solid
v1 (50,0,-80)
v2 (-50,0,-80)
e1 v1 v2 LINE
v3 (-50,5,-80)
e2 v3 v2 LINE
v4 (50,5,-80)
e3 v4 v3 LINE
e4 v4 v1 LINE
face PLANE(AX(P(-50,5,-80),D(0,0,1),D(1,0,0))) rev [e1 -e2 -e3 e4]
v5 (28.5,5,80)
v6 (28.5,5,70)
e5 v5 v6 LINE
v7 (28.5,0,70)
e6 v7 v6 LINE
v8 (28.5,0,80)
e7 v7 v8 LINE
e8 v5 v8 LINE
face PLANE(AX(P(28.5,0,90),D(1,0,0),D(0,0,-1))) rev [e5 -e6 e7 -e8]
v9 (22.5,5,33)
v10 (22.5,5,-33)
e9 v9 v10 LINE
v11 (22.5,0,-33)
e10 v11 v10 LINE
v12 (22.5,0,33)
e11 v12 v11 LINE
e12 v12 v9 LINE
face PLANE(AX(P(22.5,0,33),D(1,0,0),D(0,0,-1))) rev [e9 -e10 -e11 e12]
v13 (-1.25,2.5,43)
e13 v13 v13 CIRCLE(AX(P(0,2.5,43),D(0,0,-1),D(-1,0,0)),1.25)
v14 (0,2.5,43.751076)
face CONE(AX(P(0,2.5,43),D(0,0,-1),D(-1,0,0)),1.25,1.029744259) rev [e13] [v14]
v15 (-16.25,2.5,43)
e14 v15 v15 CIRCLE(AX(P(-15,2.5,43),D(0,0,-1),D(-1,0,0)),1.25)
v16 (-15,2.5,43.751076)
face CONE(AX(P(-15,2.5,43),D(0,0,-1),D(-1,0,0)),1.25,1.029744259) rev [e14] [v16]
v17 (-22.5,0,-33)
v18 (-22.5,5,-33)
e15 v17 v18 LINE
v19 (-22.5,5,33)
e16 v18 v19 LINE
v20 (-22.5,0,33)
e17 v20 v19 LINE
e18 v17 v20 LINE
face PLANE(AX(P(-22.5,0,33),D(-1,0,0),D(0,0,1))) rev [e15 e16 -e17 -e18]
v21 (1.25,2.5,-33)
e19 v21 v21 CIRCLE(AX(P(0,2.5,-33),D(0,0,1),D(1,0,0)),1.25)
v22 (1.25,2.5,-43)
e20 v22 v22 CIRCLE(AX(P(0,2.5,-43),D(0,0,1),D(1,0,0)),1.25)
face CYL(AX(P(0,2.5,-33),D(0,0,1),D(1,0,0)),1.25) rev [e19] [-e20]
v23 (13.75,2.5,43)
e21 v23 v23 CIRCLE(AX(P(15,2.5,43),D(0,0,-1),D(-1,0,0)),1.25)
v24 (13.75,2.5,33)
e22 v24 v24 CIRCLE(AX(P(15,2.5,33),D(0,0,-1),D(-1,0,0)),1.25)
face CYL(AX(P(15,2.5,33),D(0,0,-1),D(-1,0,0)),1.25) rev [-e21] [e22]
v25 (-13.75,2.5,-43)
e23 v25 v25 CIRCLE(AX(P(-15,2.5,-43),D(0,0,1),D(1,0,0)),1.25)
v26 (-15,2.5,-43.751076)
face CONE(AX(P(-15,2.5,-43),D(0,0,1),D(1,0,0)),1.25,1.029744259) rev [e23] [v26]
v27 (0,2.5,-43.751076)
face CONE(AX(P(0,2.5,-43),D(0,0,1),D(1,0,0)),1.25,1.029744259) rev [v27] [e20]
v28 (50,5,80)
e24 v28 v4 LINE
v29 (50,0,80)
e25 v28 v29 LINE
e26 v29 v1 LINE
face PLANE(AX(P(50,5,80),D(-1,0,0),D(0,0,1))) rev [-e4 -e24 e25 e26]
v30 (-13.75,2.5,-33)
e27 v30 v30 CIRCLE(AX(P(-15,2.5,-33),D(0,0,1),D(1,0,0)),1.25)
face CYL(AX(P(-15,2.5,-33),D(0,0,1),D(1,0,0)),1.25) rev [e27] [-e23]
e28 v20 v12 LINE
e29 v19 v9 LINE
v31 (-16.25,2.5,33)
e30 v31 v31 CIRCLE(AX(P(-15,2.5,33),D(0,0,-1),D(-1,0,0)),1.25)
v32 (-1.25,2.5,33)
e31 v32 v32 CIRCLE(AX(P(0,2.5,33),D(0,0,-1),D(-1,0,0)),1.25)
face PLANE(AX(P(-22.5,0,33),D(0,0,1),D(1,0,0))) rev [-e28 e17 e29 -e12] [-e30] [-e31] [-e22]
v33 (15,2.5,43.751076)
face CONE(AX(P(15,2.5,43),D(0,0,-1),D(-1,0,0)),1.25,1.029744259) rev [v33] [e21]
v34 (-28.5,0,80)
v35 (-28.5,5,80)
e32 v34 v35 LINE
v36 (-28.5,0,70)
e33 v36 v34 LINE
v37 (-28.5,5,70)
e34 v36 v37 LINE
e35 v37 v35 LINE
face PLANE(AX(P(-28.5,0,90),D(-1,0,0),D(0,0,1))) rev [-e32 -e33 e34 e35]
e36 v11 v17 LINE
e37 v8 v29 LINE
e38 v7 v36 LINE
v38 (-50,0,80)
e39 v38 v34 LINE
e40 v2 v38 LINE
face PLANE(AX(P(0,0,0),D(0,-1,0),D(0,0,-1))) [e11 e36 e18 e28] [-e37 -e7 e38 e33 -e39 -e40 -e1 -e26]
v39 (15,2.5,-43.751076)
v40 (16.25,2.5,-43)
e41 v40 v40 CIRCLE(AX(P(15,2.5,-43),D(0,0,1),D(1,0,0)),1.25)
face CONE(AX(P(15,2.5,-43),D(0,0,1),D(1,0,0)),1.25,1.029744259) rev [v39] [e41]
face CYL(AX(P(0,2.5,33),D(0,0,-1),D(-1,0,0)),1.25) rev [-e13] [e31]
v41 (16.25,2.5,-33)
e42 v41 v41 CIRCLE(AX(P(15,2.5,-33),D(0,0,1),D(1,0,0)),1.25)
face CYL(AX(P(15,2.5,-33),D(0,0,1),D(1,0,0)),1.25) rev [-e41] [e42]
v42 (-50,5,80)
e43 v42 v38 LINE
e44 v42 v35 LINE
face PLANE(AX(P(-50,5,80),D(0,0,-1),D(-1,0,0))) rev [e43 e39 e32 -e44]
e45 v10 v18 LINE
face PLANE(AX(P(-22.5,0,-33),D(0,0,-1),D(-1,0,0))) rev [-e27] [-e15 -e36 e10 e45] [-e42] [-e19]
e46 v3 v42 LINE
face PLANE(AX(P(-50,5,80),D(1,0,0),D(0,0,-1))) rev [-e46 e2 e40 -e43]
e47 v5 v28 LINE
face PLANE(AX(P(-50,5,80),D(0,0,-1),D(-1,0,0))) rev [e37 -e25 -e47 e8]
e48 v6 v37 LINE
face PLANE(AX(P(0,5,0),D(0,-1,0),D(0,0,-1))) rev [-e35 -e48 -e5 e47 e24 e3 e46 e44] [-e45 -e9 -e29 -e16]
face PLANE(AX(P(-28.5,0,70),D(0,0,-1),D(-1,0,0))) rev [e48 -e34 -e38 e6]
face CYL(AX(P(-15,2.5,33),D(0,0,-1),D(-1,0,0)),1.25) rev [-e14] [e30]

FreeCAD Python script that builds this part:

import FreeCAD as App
import Part
import Sketcher
Q = App.Units.Quantity

doc = App.newDocument("Part")
params = doc.addObject("Spreadsheet::Sheet", "Params")
for row, (alias, value) in enumerate([
    ("sketch1_width", "100 mm"),
    ("sketch1_height", "160 mm"),
    ("pad1_length", "5 mm"),
    ("sketch2_width", "45 mm"),
    ("sketch2_height", "66 mm"),
    ("sketch3_diameter", "2.5 mm"),
    ("hole_diameter", "2.5 mm"),
    ("hole_depth", "10 mm"),
    ("sketch4_diameter", "2.5 mm"),
    ("hole2_diameter", "2.5 mm"),
    ("hole2_depth", "10 mm"),
    ("sketch5_width", "57 mm"),
    ("sketch5_height", "20 mm"),
], start=1):
    params.set(f"A{row}", alias)
    params.set(f"B{row}", "=" + value)
    params.setAlias(f"B{row}", alias)

body = doc.addObject("PartDesign::Body", "Body")

sketch1 = body.newObject("Sketcher::SketchObject", "Sketch")
sketch1.AttachmentSupport = (doc.getObject("XZ_Plane"), [""])
sketch1.MapMode = "FlatFace"
sketch1.addGeometry([
    Part.LineSegment(App.Vector(-50, -80, 0), App.Vector(-50, 80, 0)),
    Part.LineSegment(App.Vector(-50, 80, 0), App.Vector(50, 80, 0)),
    Part.LineSegment(App.Vector(50, 80, 0), App.Vector(50, -80, 0)),
    Part.LineSegment(App.Vector(50, -80, 0), App.Vector(-50, -80, 0)),
], False)
sketch1.addConstraint([
    Sketcher.Constraint("Coincident", 0, 2, 1, 1),
    Sketcher.Constraint("Coincident", 1, 2, 2, 1),
    Sketcher.Constraint("Coincident", 2, 2, 3, 1),
    Sketcher.Constraint("Coincident", 3, 2, 0, 1),
    Sketcher.Constraint("Vertical", 0),
    Sketcher.Constraint("Horizontal", 1),
    Sketcher.Constraint("Vertical", 2),
    Sketcher.Constraint("Horizontal", 3),
    Sketcher.Constraint("Symmetric", 0, 2, 2, 2, -1, 1),
    Sketcher.Constraint("DistanceX", 1, 1, 1, 2, Q("100 mm")),
    Sketcher.Constraint("DistanceY", 0, 1, 0, 2, Q("160 mm")),
])
sketch1.setExpression("Constraints[9]", "Params.sketch1_width")
sketch1.setExpression("Constraints[10]", "Params.sketch1_height")
pad1 = body.newObject("PartDesign::Pad", "Pad")
pad1.Profile = sketch1
pad1.setExpression("Length", "Params.pad1_length")
pad1.Reversed = True

sketch2 = body.newObject("Sketcher::SketchObject", "Sketch001")
sketch2.AttachmentSupport = (doc.getObject("XZ_Plane"), [""])
sketch2.MapMode = "FlatFace"
sketch2.AttachmentOffset = App.Placement(App.Vector(0, 0, -5), App.Rotation())
sketch2.addGeometry([
    Part.LineSegment(App.Vector(-22, -33, 0), App.Vector(-22, 33, 0)),
    Part.LineSegment(App.Vector(-22, 33, 0), App.Vector(22, 33, 0)),
    Part.LineSegment(App.Vector(22, 33, 0), App.Vector(22, -33, 0)),
    Part.LineSegment(App.Vector(22, -33, 0), App.Vector(-22, -33, 0)),
], False)
sketch2.addConstraint([
    Sketcher.Constraint("Coincident", 0, 2, 1, 1),
    Sketcher.Constraint("Coincident", 1, 2, 2, 1),
    Sketcher.Constraint("Coincident", 2, 2, 3, 1),
    Sketcher.Constraint("Coincident", 3, 2, 0, 1),
    Sketcher.Constraint("Vertical", 0),
    Sketcher.Constraint("Horizontal", 1),
    Sketcher.Constraint("Vertical", 2),
    Sketcher.Constraint("Horizontal", 3),
    Sketcher.Constraint("Symmetric", 0, 2, 2, 2, -1, 1),
    Sketcher.Constraint("DistanceX", 1, 1, 1, 2, Q("45 mm")),
    Sketcher.Constraint("DistanceY", 0, 1, 0, 2, Q("66 mm")),
])
sketch2.setExpression("Constraints[9]", "Params.sketch2_width")
sketch2.setExpression("Constraints[10]", "Params.sketch2_height")
pocket1 = body.newObject("PartDesign::Pocket", "Pocket")
pocket1.Profile = sketch2
pocket1.Type = "ThroughAll"
pocket1.Reversed = True

sketch3 = body.newObject("Sketcher::SketchObject", "Sketch002")
sketch3.AttachmentSupport = (doc.getObject("XY_Plane"), [""])
sketch3.MapMode = "FlatFace"
sketch3.AttachmentOffset = App.Placement(App.Vector(0, 0, -33), App.Rotation())
sketch3.addGeometry([
    Part.Circle(App.Vector(0, 2.5, 0), App.Vector(0, 0, 1), 1.2),
    Part.Circle(App.Vector(15, 2.5, 0), App.Vector(0, 0, 1), 1.2),
    Part.Circle(App.Vector(-15, 2.5, 0), App.Vector(0, 0, 1), 1.2),
], False)
sketch3.addConstraint([
    Sketcher.Constraint("Equal", 0, 1),
    Sketcher.Constraint("Equal", 1, 2),
    Sketcher.Constraint("Symmetric", 1, 3, 2, 3, -2),
    Sketcher.Constraint("PointOnObject", 0, 3, -2),
    Sketcher.Constraint("Horizontal", 0, 3, 1, 3),
    Sketcher.Constraint("Diameter", 0, Q("2.5 mm")),
    Sketcher.Constraint("DistanceX", -1, 1, 1, 3, Q("15 mm")),
    Sketcher.Constraint("DistanceY", -1, 1, 0, 3, Q("2.5 mm")),
])
sketch3.setExpression("Constraints[5]", "Params.sketch3_diameter")
doc.recompute()
hole = body.newObject("PartDesign::Hole", "Hole")
hole.Profile = sketch3
hole.ThreadType = "None"
hole.setExpression("Diameter", "Params.hole_diameter")
hole.DepthType = "Dimension"
hole.setExpression("Depth", "Params.hole_depth")
hole.DrillPoint = "Angled"
hole.DrillPointAngle = 118

sketch4 = body.newObject("Sketcher::SketchObject", "Sketch003")
sketch4.AttachmentSupport = (doc.getObject("XY_Plane"), [""])
sketch4.MapMode = "FlatFace"
sketch4.AttachmentOffset = App.Placement(App.Vector(0, 0, 33), App.Rotation())
sketch4.addGeometry([
    Part.Circle(App.Vector(0, 2.5, 0), App.Vector(0, 0, 1), 1.2),
    Part.Circle(App.Vector(-15, 2.5, 0), App.Vector(0, 0, 1), 1.2),
    Part.Circle(App.Vector(15, 2.5, 0), App.Vector(0, 0, 1), 1.2),
], False)
sketch4.addConstraint([
    Sketcher.Constraint("Equal", 0, 1),
    Sketcher.Constraint("Equal", 1, 2),
    Sketcher.Constraint("Symmetric", 1, 3, 2, 3, -2),
    Sketcher.Constraint("PointOnObject", 0, 3, -2),
    Sketcher.Constraint("Horizontal", 0, 3, 1, 3),
    Sketcher.Constraint("Diameter", 0, Q("2.5 mm")),
    Sketcher.Constraint("DistanceX", 1, 3, -1, 1, Q("15 mm")),
    Sketcher.Constraint("DistanceY", -1, 1, 0, 3, Q("2.5 mm")),
])
sketch4.setExpression("Constraints[5]", "Params.sketch4_diameter")
doc.recompute()
hole2 = body.newObject("PartDesign::Hole", "Hole001")
hole2.Profile = sketch4
hole2.ThreadType = "None"
hole2.setExpression("Diameter", "Params.hole2_diameter")
hole2.DepthType = "Dimension"
hole2.setExpression("Depth", "Params.hole2_depth")
hole2.DrillPoint = "Angled"
hole2.DrillPointAngle = 118
hole2.Reversed = True

sketch5 = body.newObject("Sketcher::SketchObject", "Sketch004")
sketch5.AttachmentSupport = (doc.getObject("XZ_Plane"), [""])
sketch5.MapMode = "FlatFace"
sketch5.AttachmentOffset = App.Placement(App.Vector(0, 0, -5), App.Rotation())
sketch5.addGeometry([
    Part.LineSegment(App.Vector(-28, 70, 0), App.Vector(-28, 90, 0)),
    Part.LineSegment(App.Vector(-28, 90, 0), App.Vector(28, 90, 0)),
    Part.LineSegment(App.Vector(28, 90, 0), App.Vector(28, 70, 0)),
    Part.LineSegment(App.Vector(28, 70, 0), App.Vector(-28, 70, 0)),
], False)
sketch5.addConstraint([
    Sketcher.Constraint("Coincident", 0, 2, 1, 1),
    Sketcher.Constraint("Coincident", 1, 2, 2, 1),
    Sketcher.Constraint("Coincident", 2, 2, 3, 1),
    Sketcher.Constraint("Coincident", 3, 2, 0, 1),
    Sketcher.Constraint("Vertical", 0),
    Sketcher.Constraint("Horizontal", 1),
    Sketcher.Constraint("Vertical", 2),
    Sketcher.Constraint("Horizontal", 3),
    Sketcher.Constraint("DistanceX", 1, 1, 1, 2, Q("57 mm")),
    Sketcher.Constraint("DistanceY", 0, 1, 0, 2, Q("20 mm")),
    Sketcher.Constraint("DistanceY", -1, 1, 0, 2, Q("90 mm")),
    Sketcher.Constraint("DistanceX", 0, 2, -1, 1, Q("28.5 mm")),
])
sketch5.setExpression("Constraints[8]", "Params.sketch5_width")
sketch5.setExpression("Constraints[9]", "Params.sketch5_height")
pocket2 = body.newObject("PartDesign::Pocket", "Pocket001")
pocket2.Profile = sketch5
pocket2.Type = "ThroughAll"
pocket2.Reversed = True

doc.recompute()
